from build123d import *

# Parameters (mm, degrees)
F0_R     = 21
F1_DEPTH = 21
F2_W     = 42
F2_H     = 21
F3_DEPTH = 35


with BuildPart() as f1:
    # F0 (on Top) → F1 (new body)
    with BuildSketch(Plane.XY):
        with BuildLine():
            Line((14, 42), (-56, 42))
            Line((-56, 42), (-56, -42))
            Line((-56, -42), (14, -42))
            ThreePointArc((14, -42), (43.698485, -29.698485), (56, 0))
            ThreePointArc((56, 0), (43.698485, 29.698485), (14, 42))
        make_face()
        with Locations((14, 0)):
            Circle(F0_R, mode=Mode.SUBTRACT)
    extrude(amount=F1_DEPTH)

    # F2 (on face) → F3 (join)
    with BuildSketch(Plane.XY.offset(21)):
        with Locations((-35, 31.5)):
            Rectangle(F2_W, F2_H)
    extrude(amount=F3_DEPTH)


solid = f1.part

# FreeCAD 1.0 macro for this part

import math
import FreeCAD as App
import Part
import Sketcher
from FreeCAD import Vector
Q = App.Units.Quantity


def add_polygon(sketch, points):
    """Adds a closed chain of lines whose ends are joined by coincident constraints."""
    first, n = sketch.GeometryCount, len(points)
    for a, b in zip(points, points[1:] + points[:1]):
        sketch.addGeometry(Part.LineSegment(App.Vector(*a, 0), App.Vector(*b, 0)), False)
    for i in range(n):
        sketch.addConstraint(Sketcher.Constraint("Coincident", first + i, 2, first + (i + 1) % n, 1))

doc = App.newDocument("Part")
body = doc.addObject("PartDesign::Body", "Body")

# Sketch on XY plane
sketch1 = body.newObject("Sketcher::SketchObject", "Sketch")
sketch1.AttachmentSupport = (doc.getObject("XY_Plane"), [""])
sketch1.MapMode = "FlatFace"
sketch1.addGeometry([
    Part.LineSegment(Vector(14, 42, 0), Vector(-56, 42, 0)),  # 0
    Part.LineSegment(Vector(-56, 42, 0), Vector(-56, -42, 0)),  # 1
    Part.LineSegment(Vector(-56, -42, 0), Vector(14, -42, 0)),  # 2
    Part.ArcOfCircle(Part.Circle(Vector(14, 0, 0), Vector(0, 0, 1), 42), math.radians(-90), math.radians(0)),  # 3
    Part.ArcOfCircle(Part.Circle(Vector(14, 0, 0), Vector(0, 0, 1), 42), math.radians(0), math.radians(90)),  # 4
    Part.Circle(Vector(14, 0, 0), Vector(0, 0, 1), 21),  # 5
], False)
sketch1.addConstraint([
    Sketcher.Constraint("Coincident", 0, 2, 1, 1),
    Sketcher.Constraint("Coincident", 1, 2, 2, 1),
    Sketcher.Constraint("Tangent", 2, 2, 3, 1),
    Sketcher.Constraint("Tangent", 3, 2, 4, 1),
    Sketcher.Constraint("Tangent", 4, 2, 0, 1),
    Sketcher.Constraint("Horizontal", 0),
    Sketcher.Constraint("Vertical", 1),
    Sketcher.Constraint("Horizontal", 2),
    Sketcher.Constraint("Coincident", 5, 3, 3, 3),
    Sketcher.Constraint("Equal", 3, 4),
    Sketcher.Constraint("PointOnObject", 3, 3, -1),
    Sketcher.Constraint("PointOnObject", 3, 2, -1),
    Sketcher.Constraint("Diameter", 5, Q("42 mm")),
    Sketcher.Constraint("Radius", 3, Q("41.999999 mm")),
    Sketcher.Constraint("DistanceX", 0, 2, 0, 1, Q("70 mm")),
    Sketcher.Constraint("DistanceX", -1, 1, 3, 3, Q("14.000001 mm")),
])
pad1 = body.newObject("PartDesign::Pad", "Pad")
pad1.Profile = sketch1
pad1.Length = 21

# Sketch on XY plane
sketch2 = body.newObject("Sketcher::SketchObject", "Sketch001")
sketch2.AttachmentSupport = (doc.getObject("XY_Plane"), [""])
sketch2.MapMode = "FlatFace"
sketch2.AttachmentOffset = App.Placement(Vector(0, 0, 21), App.Rotation())
add_polygon(sketch2, [(-56, 42), (-56, 21), (-14, 21), (-14, 42)])  # lines 0-3
sketch2.addConstraint([
    Sketcher.Constraint("Vertical", 0),
    Sketcher.Constraint("Horizontal", 1),
    Sketcher.Constraint("Vertical", 2),
    Sketcher.Constraint("Horizontal", 3),
    Sketcher.Constraint("DistanceX", 1, 1, 1, 2, Q("42 mm")),
    Sketcher.Constraint("DistanceY", 0, 2, 0, 1, Q("21 mm")),
    Sketcher.Constraint("DistanceX", 0, 2, -1, 1, Q("56 mm")),
    Sketcher.Constraint("DistanceY", -1, 1, 0, 2, Q("21 mm")),
])
pad2 = body.newObject("PartDesign::Pad", "Pad001")
pad2.Profile = sketch2
pad2.Length = 35

doc.recompute()
